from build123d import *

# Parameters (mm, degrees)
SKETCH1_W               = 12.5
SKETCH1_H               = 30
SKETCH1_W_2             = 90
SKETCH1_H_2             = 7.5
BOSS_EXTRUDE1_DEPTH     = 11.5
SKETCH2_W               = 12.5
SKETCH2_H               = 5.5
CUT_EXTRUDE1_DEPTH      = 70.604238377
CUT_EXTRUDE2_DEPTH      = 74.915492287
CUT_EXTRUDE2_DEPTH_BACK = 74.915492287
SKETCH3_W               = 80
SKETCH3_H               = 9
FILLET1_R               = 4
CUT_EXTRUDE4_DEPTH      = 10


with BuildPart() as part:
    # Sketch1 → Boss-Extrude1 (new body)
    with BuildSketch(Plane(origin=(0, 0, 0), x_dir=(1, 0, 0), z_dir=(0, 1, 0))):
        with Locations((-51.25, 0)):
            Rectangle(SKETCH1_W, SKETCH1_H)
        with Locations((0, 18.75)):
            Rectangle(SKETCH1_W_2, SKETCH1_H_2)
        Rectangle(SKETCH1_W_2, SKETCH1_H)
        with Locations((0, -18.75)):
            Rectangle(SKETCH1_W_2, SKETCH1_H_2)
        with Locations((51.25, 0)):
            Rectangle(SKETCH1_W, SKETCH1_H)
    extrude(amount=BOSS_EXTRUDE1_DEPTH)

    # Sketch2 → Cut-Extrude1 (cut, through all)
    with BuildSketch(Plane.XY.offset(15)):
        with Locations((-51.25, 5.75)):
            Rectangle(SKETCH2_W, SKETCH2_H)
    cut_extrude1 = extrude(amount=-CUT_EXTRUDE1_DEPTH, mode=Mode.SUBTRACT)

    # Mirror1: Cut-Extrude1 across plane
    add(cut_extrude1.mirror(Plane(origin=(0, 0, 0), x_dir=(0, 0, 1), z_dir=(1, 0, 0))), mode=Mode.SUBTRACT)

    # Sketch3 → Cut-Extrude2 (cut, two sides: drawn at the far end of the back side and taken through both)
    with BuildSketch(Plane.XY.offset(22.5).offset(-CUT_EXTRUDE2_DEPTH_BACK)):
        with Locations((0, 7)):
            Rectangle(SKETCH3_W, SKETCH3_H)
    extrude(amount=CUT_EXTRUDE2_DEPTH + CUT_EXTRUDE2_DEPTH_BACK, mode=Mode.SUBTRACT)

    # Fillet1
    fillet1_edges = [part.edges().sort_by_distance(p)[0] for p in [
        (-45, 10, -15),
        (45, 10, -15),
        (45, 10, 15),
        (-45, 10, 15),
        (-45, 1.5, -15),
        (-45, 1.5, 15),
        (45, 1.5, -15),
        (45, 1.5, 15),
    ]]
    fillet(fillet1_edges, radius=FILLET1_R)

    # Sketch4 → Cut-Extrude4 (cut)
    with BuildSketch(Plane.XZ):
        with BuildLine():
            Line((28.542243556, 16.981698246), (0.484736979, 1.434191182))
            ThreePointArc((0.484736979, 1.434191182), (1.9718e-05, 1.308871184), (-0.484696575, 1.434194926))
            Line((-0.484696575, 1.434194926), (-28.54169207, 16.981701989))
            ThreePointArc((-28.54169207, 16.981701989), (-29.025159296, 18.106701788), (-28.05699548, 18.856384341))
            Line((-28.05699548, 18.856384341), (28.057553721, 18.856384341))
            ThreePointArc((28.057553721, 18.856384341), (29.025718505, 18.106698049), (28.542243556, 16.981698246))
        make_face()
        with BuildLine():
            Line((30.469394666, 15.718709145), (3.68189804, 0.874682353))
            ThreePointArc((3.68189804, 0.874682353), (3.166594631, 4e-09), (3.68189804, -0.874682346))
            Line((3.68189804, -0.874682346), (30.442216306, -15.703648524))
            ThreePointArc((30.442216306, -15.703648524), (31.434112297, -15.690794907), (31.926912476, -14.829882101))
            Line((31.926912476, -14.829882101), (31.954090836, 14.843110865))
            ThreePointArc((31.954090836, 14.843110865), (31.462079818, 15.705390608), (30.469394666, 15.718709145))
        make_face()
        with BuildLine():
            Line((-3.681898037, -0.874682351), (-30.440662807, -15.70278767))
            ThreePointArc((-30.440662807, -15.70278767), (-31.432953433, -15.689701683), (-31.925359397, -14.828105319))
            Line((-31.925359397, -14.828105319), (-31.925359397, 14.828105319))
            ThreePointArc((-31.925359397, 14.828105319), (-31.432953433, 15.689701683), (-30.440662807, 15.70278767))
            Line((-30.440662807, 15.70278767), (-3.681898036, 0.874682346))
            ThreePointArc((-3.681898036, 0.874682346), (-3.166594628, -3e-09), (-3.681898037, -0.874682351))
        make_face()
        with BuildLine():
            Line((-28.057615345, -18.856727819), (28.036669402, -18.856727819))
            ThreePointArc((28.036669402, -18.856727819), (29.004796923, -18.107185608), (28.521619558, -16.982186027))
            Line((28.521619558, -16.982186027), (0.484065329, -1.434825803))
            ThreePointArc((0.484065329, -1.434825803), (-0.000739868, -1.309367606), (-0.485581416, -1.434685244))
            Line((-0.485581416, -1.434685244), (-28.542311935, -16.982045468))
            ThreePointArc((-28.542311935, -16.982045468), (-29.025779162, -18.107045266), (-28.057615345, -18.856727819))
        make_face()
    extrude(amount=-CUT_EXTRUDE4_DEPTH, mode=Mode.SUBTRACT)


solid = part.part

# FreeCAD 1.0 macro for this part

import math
import FreeCAD as App
import Part
import Sketcher

V = App.Vector
Q = App.Units.Quantity


def edges_at(feature, points):
    """Names of the edges that pass closest to the given points."""
    edges = feature.Shape.Edges
    near = lambda p: min(range(len(edges)), key=lambda i: edges[i].distToShape(Part.Vertex(*p))[0])
    return sorted({f"Edge{near(p) + 1}" for p in points})

doc = App.newDocument("Part")
body = doc.addObject("PartDesign::Body", "Body")

sketch1 = doc.addObject("Sketcher::SketchObject", "Sketch")
body.addObject(sketch1)
sketch1.AttachmentSupport = (doc.XZ_Plane, [""])
sketch1.MapMode = "FlatFace"
sketch1.addGeometry([
    Part.LineSegment(V(-57.5, -15, 0), V(-57.5, 15, 0)),
    Part.LineSegment(V(-57.5, 15, 0), V(-45, 15, 0)),
    Part.LineSegment(V(-45, 15, 0), V(-45, 22.5, 0)),
    Part.LineSegment(V(-45, 22.5, 0), V(45, 22.5, 0)),
    Part.LineSegment(V(45, 22.5, 0), V(45, 15, 0)),
    Part.LineSegment(V(45, 15, 0), V(57.5, 15, 0)),
    Part.LineSegment(V(57.5, 15, 0), V(57.5, -15, 0)),
    Part.LineSegment(V(57.5, -15, 0), V(45, -15, 0)),
    Part.LineSegment(V(45, -15, 0), V(45, -22.5, 0)),
    Part.LineSegment(V(45, -22.5, 0), V(-45, -22.5, 0)),
    Part.LineSegment(V(-45, -22.5, 0), V(-45, -15, 0)),
    Part.LineSegment(V(-45, -15, 0), V(-57.5, -15, 0)),
], False)
sketch1.addConstraint([
    Sketcher.Constraint("Coincident", 0, 2, 1, 1),
    Sketcher.Constraint("Coincident", 1, 2, 2, 1),
    Sketcher.Constraint("Coincident", 2, 2, 3, 1),
    Sketcher.Constraint("Coincident", 3, 2, 4, 1),
    Sketcher.Constraint("Coincident", 4, 2, 5, 1),
    Sketcher.Constraint("Coincident", 5, 2, 6, 1),
    Sketcher.Constraint("Coincident", 6, 2, 7, 1),
    Sketcher.Constraint("Coincident", 7, 2, 8, 1),
    Sketcher.Constraint("Coincident", 8, 2, 9, 1),
    Sketcher.Constraint("Coincident", 9, 2, 10, 1),
    Sketcher.Constraint("Coincident", 10, 2, 11, 1),
    Sketcher.Constraint("Coincident", 11, 2, 0, 1),
    Sketcher.Constraint("Vertical", 0),
    Sketcher.Constraint("Horizontal", 1),
    Sketcher.Constraint("Vertical", 2),
    Sketcher.Constraint("Horizontal", 3),
    Sketcher.Constraint("Vertical", 4),
    Sketcher.Constraint("Horizontal", 5),
    Sketcher.Constraint("Vertical", 6),
    Sketcher.Constraint("Horizontal", 7),
    Sketcher.Constraint("Vertical", 8),
    Sketcher.Constraint("Horizontal", 9),
    Sketcher.Constraint("Vertical", 10),
    Sketcher.Constraint("Horizontal", 11),
    Sketcher.Constraint("Symmetric", 0, 2, 6, 2, -1, 1),
    Sketcher.Constraint("Symmetric", 2, 2, 8, 2, -1, 1),
    Sketcher.Constraint("Symmetric", 4, 2, 10, 2, -1, 1),
    Sketcher.Constraint("Symmetric", 1, 2, 4, 2, -2),
    Sketcher.Constraint("DistanceX", 3, 1, 3, 2, Q("90 mm")),
    Sketcher.Constraint("DistanceY", 0, 1, 0, 2, Q("30 mm")),
    Sketcher.Constraint("DistanceX", 1, 1, 1, 2, Q("12.5 mm")),
    Sketcher.Constraint("DistanceY", 2, 1, 2, 2, Q("7.5 mm")),
])
pad1 = doc.addObject("PartDesign::Pad", "Pad")
body.addObject(pad1)
pad1.Profile = sketch1
pad1.Length = 11.5
pad1.Reversed = True

sketch2 = doc.addObject("Sketcher::SketchObject", "Sketch001")
body.addObject(sketch2)
sketch2.AttachmentSupport = (doc.XY_Plane, [""])
sketch2.MapMode = "FlatFace"
sketch2.AttachmentOffset = App.Placement(V(0, 0, 15), App.Rotation())
sketch2.addGeometry([
    Part.LineSegment(V(-57.5, 8.5, 0), V(-57.5, 3, 0)),
    Part.LineSegment(V(-57.5, 3, 0), V(-45, 3, 0)),
    Part.LineSegment(V(-45, 3, 0), V(-45, 8.5, 0)),
    Part.LineSegment(V(-45, 8.5, 0), V(-57.5, 8.5, 0)),
], False)
sketch2.addConstraint([
    Sketcher.Constraint("Coincident", 0, 2, 1, 1),
    Sketcher.Constraint("Coincident", 1, 2, 2, 1),
    Sketcher.Constraint("Coincident", 2, 2, 3, 1),
    Sketcher.Constraint("Coincident", 3, 2, 0, 1),
    Sketcher.Constraint("Vertical", 0),
    Sketcher.Constraint("Horizontal", 1),
    Sketcher.Constraint("Vertical", 2),
    Sketcher.Constraint("Horizontal", 3),
    Sketcher.Constraint("DistanceX", 1, 1, 1, 2, Q("12.5 mm")),
    Sketcher.Constraint("DistanceY", 0, 2, 0, 1, Q("5.5 mm")),
    Sketcher.Constraint("DistanceY", -1, 1, 0, 2, Q("3 mm")),
    Sketcher.Constraint("DistanceX", 1, 2, -1, 1, Q("45 mm")),
])
pocket1 = doc.addObject("PartDesign::Pocket", "Pocket")
body.addObject(pocket1)
pocket1.Profile = sketch2
pocket1.Type = "ThroughAll"
doc.recompute()

mirrored = doc.addObject("PartDesign::Mirrored", "Mirrored")
body.addObject(mirrored)
mirrored.Originals = [pocket1]
mirrored.MirrorPlane = (doc.YZ_Plane, [""])
body.Tip = mirrored

sketch3 = doc.addObject("Sketcher::SketchObject", "Sketch002")
body.addObject(sketch3)
sketch3.AttachmentSupport = (doc.XY_Plane, [""])
sketch3.MapMode = "FlatFace"
sketch3.AttachmentOffset = App.Placement(V(0, 0, 22.5), App.Rotation())
sketch3.addGeometry([
    Part.LineSegment(V(-40, 11.5, 0), V(-40, 2.5, 0)),
    Part.LineSegment(V(-40, 2.5, 0), V(40, 2.5, 0)),
    Part.LineSegment(V(40, 2.5, 0), V(40, 11.5, 0)),
    Part.LineSegment(V(40, 11.5, 0), V(-40, 11.5, 0)),
], False)
sketch3.addConstraint([
    Sketcher.Constraint("Coincident", 0, 2, 1, 1),
    Sketcher.Constraint("Coincident", 1, 2, 2, 1),
    Sketcher.Constraint("Coincident", 2, 2, 3, 1),
    Sketcher.Constraint("Coincident", 3, 2, 0, 1),
    Sketcher.Constraint("Vertical", 0),
    Sketcher.Constraint("Horizontal", 1),
    Sketcher.Constraint("Vertical", 2),
    Sketcher.Constraint("Horizontal", 3),
    Sketcher.Constraint("DistanceX", 1, 1, 1, 2, Q("80 mm")),
    Sketcher.Constraint("DistanceY", 0, 2, 0, 1, Q("9 mm")),
    Sketcher.Constraint("DistanceX", 0, 2, -1, 1, Q("40 mm")),
    Sketcher.Constraint("DistanceY", -1, 1, 0, 2, Q("2.5 mm")),
])
pocket2 = doc.addObject("PartDesign::Pocket", "Pocket001")
body.addObject(pocket2)
pocket2.Profile = sketch3
pocket2.Type = "ThroughAll"
pocket2.Midplane = True
doc.recompute()

fillet = doc.addObject("PartDesign::Fillet", "Fillet")
body.addObject(fillet)
fillet.Base = (pocket2, edges_at(pocket2, [
    (-45, 10, -15),
    (45, 10, -15),
    (45, 10, 15),
    (-45, 10, 15),
    (-45, 1.5, -15),
    (-45, 1.5, 15),
    (45, 1.5, -15),
    (45, 1.5, 15),
]))
fillet.Radius = 4

sketch4 = doc.addObject("Sketcher::SketchObject", "Sketch003")
body.addObject(sketch4)
sketch4.AttachmentSupport = (doc.XZ_Plane, [""])
sketch4.MapMode = "FlatFace"
sketch4.addGeometry([
    Part.LineSegment(V(0.484737, 1.434191, 0), V(28.542244, 16.981698, 0)),
    Part.ArcOfCircle(Part.Circle(V(28.057554, 17.856384, 0), V(0, 0, 1), 1), math.radians(-61.007847), math.radians(90)),
    Part.LineSegment(V(28.057554, 18.856384, 0), V(-28.056995, 18.856384, 0)),
    Part.ArcOfCircle(Part.Circle(V(-28.056995, 17.856384, 0), V(0, 0, 1), 1), math.radians(90), math.radians(241.007404)),
    Part.LineSegment(V(-28.541692, 16.981702, 0), V(-0.484697, 1.434195, 0)),
    Part.ArcOfCircle(Part.Circle(V(0.000024, 2.30892, 0), V(0, 0, 1), 1.000049), math.radians(-118.992596), math.radians(-61.007847)),
    Part.LineSegment(V(30.469395, 15.718709, 0), V(3.681898, 0.874682, 0)),
    Part.ArcOfCircle(Part.Circle(V(4.166595, 0, 0), V(0, 0, 1), 1), math.radians(118.992596), math.radians(241.007404)),
    Part.LineSegment(V(3.681898, -0.874682, 0), V(30.442216, -15.703649, 0)),
    Part.ArcOfCircle(Part.Circle(V(30.926913, -14.828966, 0), V(0, 0, 1), 1), math.radians(-118.992596), math.radians(-0.052479)),
    Part.LineSegment(V(31.926912, -14.829882, 0), V(31.954091, 14.843111, 0)),
    Part.ArcOfCircle(Part.Circle(V(30.954091, 14.844027, 0), V(0, 0, 1), 1), math.radians(-0.052479), math.radians(118.992596)),
    Part.LineSegment(V(-30.440663, -15.702788, 0), V(-3.681898, -0.874682, 0)),
    Part.ArcOfCircle(Part.Circle(V(-4.166595, 0, 0), V(0, 0, 1), 1), math.radians(-61.007404), math.radians(61.007404)),
    Part.LineSegment(V(-3.681898, 0.874682, 0), V(-30.440663, 15.702788, 0)),
    Part.ArcOfCircle(Part.Circle(V(-30.925359, 14.828105, 0), V(0, 0, 1), 1), math.radians(61.007404), math.radians(180)),
    Part.LineSegment(V(-31.925359, 14.828105, 0), V(-31.925359, -14.828105, 0)),
    Part.ArcOfCircle(Part.Circle(V(-30.925359, -14.828105, 0), V(0, 0, 1), 1), math.radians(180), math.radians(298.992596)),
    Part.LineSegment(V(-28.057615, -18.856728, 0), V(28.036669, -18.856728, 0)),
    Part.ArcOfCircle(Part.Circle(V(28.036669, -17.856728, 0), V(0, 0, 1), 1), math.radians(-90), math.radians(60.990793)),
    Part.LineSegment(V(28.52162, -16.982186, 0), V(0.484065, -1.434826, 0)),
    Part.ArcOfCircle(Part.Circle(V(-0.000885, -2.309368, 0), V(0, 0, 1), 1), math.radians(60.990793), math.radians(118.992596)),
    Part.LineSegment(V(-0.485581, -1.434685, 0), V(-28.542312, -16.982045, 0)),
    Part.ArcOfCircle(Part.Circle(V(-28.057615, -17.856728, 0), V(0, 0, 1), 1), math.radians(118.992596), math.radians(270)),
], False)
sketch4.addConstraint([
    Sketcher.Constraint("Coincident", 0, 2, 1, 1),
    Sketcher.Constraint("Coincident", 1, 2, 2, 1),
    Sketcher.Constraint("Coincident", 2, 2, 3, 1),
    Sketcher.Constraint("Coincident", 3, 2, 4, 1),
    Sketcher.Constraint("Coincident", 4, 2, 5, 1),
    Sketcher.Constraint("Coincident", 5, 2, 0, 1),
    Sketcher.Constraint("Coincident", 6, 2, 7, 1),
    Sketcher.Constraint("Coincident", 7, 2, 8, 1),
    Sketcher.Constraint("Coincident", 8, 2, 9, 1),
    Sketcher.Constraint("Coincident", 9, 2, 10, 1),
    Sketcher.Constraint("Coincident", 10, 2, 11, 1),
    Sketcher.Constraint("Coincident", 11, 2, 6, 1),
    Sketcher.Constraint("Coincident", 12, 2, 13, 1),
    Sketcher.Constraint("Coincident", 13, 2, 14, 1),
    Sketcher.Constraint("Coincident", 14, 2, 15, 1),
    Sketcher.Constraint("Coincident", 15, 2, 16, 1),
    Sketcher.Constraint("Coincident", 16, 2, 17, 1),
    Sketcher.Constraint("Coincident", 17, 2, 12, 1),
    Sketcher.Constraint("Coincident", 18, 2, 19, 1),
    Sketcher.Constraint("Coincident", 19, 2, 20, 1),
    Sketcher.Constraint("Coincident", 20, 2, 21, 1),
    Sketcher.Constraint("Coincident", 21, 2, 22, 1),
    Sketcher.Constraint("Coincident", 22, 2, 23, 1),
    Sketcher.Constraint("Coincident", 23, 2, 18, 1),
    Sketcher.Constraint("Horizontal", 2),
    Sketcher.Constraint("Vertical", 16),
    Sketcher.Constraint("Horizontal", 18),
    Sketcher.Constraint("PointOnObject", 7, 3, -1),
    Sketcher.Constraint("PointOnObject", 13, 3, -1),
    Sketcher.Constraint("Radius", 1, Q("1 mm")),
    Sketcher.Constraint("Radius", 3, Q("1 mm")),
    Sketcher.Constraint("Radius", 7, Q("1 mm")),
    Sketcher.Constraint("Radius", 9, Q("1 mm")),
    Sketcher.Constraint("Radius", 11, Q("1 mm")),
    Sketcher.Constraint("Radius", 13, Q("1 mm")),
    Sketcher.Constraint("Radius", 15, Q("1 mm")),
    Sketcher.Constraint("Radius", 17, Q("1 mm")),
    Sketcher.Constraint("Radius", 19, Q("1 mm")),
    Sketcher.Constraint("Radius", 21, Q("1 mm")),
    Sketcher.Constraint("Radius", 23, Q("1 mm")),
    Sketcher.Constraint("Radius", 5, Q("1.000049 mm")),
    Sketcher.Constraint("Distance", 6, Q("30.6254 mm")),
    Sketcher.Constraint("DistanceX", 2, 2, 2, 1, Q("56.114549 mm")),
    Sketcher.Constraint("DistanceY", 16, 2, 16, 1, Q("29.656211 mm")),
    Sketcher.Constraint("DistanceY", -1, 1, 0, 2, Q("16.981698 mm")),
    Sketcher.Constraint("DistanceY", -1, 1, 3, 2, Q("16.981702 mm")),
    Sketcher.Constraint("DistanceX", -1, 1, 6, 2, Q("3.681898 mm")),
    Sketcher.Constraint("DistanceX", -1, 1, 7, 2, Q("3.681898 mm")),
    Sketcher.Constraint("DistanceX", 12, 2, -1, 1, Q("3.681898 mm")),
    Sketcher.Constraint("DistanceX", 13, 2, -1, 1, Q("3.681898 mm")),
    Sketcher.Constraint("DistanceX", 3, 3, 13, 3, Q("23.890401 mm")),
    Sketcher.Constraint("DistanceX", 2, 2, 13, 3, Q("23.890401 mm")),
    Sketcher.Constraint("DistanceX", 13, 3, 4, 2, Q("3.681898 mm")),
    Sketcher.Constraint("DistanceY", 10, 2, 11, 2, Q("0.875598 mm")),
    Sketcher.Constraint("DistanceX", 12, 2, 4, 2, Q("3.197201 mm")),
    Sketcher.Constraint("Distance", 0, Q("32.077229 mm")),
    Sketcher.Constraint("Distance", 12, Q("30.592551 mm")),
    Sketcher.Constraint("Distance", 14, Q("30.592551 mm")),
    Sketcher.Constraint("Distance", 22, Q("32.07648 mm")),
    Sketcher.Constraint("DistanceX", 18, 1, 18, 2, Q("56.094285 mm")),
    Sketcher.Constraint("DistanceY", -1, 1, 5, 3, Q("2.30892 mm")),
    Sketcher.Constraint("DistanceX", -1, 1, 11, 3, Q("30.954091 mm")),
    Sketcher.Constraint("DistanceX", 15, 3, -1, 1, Q("30.925359 mm")),
    Sketcher.Constraint("DistanceX", -1, 1, 19, 3, Q("28.036669 mm")),
    Sketcher.Constraint("DistanceY", -1, 1, 5, 2, Q("1.434191 mm")),
    Sketcher.Constraint("DistanceY", 8, 2, -1, 1, Q("15.703649 mm")),
    Sketcher.Constraint("DistanceY", -1, 1, 10, 2, Q("14.843111 mm")),
    Sketcher.Constraint("DistanceX", -1, 1, 18, 2, Q("28.036669 mm")),
    Sketcher.Constraint("DistanceX", -1, 1, 19, 2, Q("28.52162 mm")),
    Sketcher.Constraint("DistanceX", 21, 2, -1, 1, Q("0.485581 mm")),
    Sketcher.Constraint("DistanceX", 22, 2, -1, 1, Q("28.542312 mm")),
    Sketcher.Constraint("DistanceX", 3, 3, 1, 3, Q("56.114549 mm")),
    Sketcher.Constraint("DistanceX", 3, 3, 5, 3, Q("28.057019 mm")),
    Sketcher.Constraint("DistanceX", 5, 3, 7, 3, Q("4.166571 mm")),
    Sketcher.Constraint("DistanceX", 7, 3, 9, 3, Q("26.760318 mm")),
    Sketcher.Constraint("DistanceY", 9, 3, 1, 3, Q("32.685351 mm")),
    Sketcher.Constraint("DistanceY", 15, 3, 3, 3, Q("3.028279 mm")),
    Sketcher.Constraint("DistanceY", 17, 3, 15, 3, Q("29.656211 mm")),
    Sketcher.Constraint("DistanceY", 19, 3, 9, 3, Q("3.027762 mm")),
    Sketcher.Constraint("DistanceX", 21, 3, 5, 3, Q("0.000908 mm")),
    Sketcher.Constraint("DistanceY", 19, 3, 21, 3, Q("15.54736 mm")),
    Sketcher.Constraint("DistanceY", 9, 2, 11, 3, Q("29.673909 mm")),
    Sketcher.Constraint("DistanceY", 15, 2, 3, 3, Q("3.028279 mm")),
    Sketcher.Constraint("DistanceX", 21, 3, 20, 2, Q("0.48495 mm")),
])
pocket3 = doc.addObject("PartDesign::Pocket", "Pocket002")
body.addObject(pocket3)
pocket3.Profile = sketch4
pocket3.Length = 10

doc.recompute()
